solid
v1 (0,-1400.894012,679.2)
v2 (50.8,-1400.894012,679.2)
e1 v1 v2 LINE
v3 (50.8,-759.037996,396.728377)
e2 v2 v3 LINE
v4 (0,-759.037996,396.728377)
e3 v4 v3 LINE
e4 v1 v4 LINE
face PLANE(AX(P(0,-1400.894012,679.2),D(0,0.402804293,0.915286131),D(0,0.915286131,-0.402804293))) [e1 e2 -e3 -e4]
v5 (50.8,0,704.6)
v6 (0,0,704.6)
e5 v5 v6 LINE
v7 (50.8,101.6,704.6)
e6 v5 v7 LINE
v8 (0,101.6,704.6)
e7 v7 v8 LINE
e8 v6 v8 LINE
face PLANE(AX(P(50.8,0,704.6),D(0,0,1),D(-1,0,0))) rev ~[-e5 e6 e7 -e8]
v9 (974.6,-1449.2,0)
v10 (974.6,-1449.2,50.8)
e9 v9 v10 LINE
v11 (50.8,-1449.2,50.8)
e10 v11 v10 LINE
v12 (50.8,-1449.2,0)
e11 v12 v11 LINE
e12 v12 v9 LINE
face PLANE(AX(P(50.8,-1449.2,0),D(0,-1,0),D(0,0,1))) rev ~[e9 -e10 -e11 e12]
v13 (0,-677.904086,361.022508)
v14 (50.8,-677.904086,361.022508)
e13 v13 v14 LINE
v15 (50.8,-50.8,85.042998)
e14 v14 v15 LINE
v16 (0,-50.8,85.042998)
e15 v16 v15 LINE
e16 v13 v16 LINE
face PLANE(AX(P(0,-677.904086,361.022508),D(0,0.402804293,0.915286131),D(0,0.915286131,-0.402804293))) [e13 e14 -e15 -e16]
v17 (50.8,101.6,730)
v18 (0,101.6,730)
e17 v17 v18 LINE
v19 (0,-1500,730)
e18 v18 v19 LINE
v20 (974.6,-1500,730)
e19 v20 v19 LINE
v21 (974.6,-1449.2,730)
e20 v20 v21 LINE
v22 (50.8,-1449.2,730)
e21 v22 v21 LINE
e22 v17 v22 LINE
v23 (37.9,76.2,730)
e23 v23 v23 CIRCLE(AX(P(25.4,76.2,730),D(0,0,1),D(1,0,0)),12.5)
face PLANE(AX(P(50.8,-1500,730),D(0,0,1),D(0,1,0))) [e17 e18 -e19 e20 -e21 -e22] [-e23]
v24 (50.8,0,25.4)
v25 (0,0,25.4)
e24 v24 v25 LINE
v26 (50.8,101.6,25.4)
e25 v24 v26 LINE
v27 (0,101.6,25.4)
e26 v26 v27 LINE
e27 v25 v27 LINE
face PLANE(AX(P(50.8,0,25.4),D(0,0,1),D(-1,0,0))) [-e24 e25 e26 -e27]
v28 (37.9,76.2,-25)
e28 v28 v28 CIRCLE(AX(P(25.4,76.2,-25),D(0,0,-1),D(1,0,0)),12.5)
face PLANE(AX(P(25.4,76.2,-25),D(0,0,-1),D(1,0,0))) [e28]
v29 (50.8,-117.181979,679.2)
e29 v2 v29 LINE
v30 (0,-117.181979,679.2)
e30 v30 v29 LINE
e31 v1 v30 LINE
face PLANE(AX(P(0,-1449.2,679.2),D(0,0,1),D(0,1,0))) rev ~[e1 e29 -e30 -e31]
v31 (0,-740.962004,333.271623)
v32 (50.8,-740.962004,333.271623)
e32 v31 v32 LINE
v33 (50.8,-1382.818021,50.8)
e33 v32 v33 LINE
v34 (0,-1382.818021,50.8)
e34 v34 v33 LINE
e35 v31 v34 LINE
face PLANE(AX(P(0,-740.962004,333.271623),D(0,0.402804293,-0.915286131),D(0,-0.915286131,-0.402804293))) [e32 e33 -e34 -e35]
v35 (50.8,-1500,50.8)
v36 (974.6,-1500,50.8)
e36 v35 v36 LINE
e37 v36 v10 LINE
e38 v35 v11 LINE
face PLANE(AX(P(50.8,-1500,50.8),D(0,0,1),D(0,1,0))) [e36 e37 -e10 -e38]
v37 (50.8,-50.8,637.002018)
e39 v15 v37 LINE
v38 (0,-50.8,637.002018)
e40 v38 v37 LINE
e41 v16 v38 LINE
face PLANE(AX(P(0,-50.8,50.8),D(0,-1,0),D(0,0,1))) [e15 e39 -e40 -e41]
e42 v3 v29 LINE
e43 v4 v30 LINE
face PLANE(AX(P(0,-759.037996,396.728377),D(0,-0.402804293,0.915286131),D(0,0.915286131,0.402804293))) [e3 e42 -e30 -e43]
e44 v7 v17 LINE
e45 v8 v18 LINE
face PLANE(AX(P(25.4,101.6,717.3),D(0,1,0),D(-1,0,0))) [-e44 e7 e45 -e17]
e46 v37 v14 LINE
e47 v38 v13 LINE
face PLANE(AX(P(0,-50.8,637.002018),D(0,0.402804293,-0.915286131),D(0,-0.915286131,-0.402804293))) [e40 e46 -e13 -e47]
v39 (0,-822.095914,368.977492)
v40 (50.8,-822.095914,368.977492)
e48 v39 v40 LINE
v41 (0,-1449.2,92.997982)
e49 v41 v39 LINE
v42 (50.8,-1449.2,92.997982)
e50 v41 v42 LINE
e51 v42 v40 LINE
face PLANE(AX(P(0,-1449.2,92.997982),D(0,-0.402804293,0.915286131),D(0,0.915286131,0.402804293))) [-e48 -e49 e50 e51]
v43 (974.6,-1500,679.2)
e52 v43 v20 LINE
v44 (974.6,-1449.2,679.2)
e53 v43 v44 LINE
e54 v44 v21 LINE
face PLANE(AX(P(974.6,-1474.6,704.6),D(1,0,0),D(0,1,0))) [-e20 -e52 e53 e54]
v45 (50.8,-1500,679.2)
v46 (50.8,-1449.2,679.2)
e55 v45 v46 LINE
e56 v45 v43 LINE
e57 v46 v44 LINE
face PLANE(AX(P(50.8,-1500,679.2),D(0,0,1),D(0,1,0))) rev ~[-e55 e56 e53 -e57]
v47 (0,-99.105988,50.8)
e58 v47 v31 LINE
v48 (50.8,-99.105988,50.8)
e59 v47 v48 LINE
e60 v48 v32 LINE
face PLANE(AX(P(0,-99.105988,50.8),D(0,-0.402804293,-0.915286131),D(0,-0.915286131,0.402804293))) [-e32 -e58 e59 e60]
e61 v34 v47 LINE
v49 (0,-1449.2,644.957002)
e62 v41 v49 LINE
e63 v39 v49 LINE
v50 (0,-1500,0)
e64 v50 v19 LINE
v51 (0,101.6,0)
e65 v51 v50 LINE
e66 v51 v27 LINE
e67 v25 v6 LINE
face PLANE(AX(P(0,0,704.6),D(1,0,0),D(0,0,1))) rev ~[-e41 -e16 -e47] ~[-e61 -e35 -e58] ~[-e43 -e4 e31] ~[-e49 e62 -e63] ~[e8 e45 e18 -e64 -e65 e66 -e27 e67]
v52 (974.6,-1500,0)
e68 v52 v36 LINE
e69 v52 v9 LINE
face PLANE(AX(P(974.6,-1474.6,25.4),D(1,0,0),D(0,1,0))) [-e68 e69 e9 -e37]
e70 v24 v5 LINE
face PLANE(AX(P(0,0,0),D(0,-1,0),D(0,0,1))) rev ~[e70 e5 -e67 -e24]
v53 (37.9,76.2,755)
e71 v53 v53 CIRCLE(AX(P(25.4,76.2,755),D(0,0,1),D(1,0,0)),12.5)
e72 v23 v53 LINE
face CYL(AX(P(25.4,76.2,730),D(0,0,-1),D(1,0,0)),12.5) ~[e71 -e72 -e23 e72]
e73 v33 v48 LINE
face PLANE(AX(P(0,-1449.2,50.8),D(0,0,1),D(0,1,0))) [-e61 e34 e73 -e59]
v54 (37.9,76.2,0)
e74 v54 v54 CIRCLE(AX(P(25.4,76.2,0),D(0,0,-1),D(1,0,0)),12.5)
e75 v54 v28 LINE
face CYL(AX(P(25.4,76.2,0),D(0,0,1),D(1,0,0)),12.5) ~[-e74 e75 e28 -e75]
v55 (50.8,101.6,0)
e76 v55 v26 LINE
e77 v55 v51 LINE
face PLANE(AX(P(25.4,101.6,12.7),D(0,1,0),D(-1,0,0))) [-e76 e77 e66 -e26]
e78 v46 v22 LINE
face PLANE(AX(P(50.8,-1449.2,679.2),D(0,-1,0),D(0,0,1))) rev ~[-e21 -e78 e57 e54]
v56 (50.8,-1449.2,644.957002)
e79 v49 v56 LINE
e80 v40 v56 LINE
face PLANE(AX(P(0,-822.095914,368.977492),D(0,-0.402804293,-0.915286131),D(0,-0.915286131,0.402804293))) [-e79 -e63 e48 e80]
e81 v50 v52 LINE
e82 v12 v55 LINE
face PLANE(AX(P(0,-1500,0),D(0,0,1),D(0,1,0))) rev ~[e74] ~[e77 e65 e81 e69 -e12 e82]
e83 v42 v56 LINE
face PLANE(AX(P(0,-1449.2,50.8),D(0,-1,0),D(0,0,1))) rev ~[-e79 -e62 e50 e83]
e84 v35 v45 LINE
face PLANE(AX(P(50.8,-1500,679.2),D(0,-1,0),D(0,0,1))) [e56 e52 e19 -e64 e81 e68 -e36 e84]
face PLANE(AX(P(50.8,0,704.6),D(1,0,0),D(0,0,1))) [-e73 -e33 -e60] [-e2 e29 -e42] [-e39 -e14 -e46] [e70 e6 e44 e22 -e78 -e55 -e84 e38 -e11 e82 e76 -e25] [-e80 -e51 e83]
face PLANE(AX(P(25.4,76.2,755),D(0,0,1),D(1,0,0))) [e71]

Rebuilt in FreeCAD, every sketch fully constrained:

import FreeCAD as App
import Part
import Sketcher
from FreeCAD import Vector
Q = App.Units.Quantity

doc = App.newDocument("Part")
params = doc.addObject("Spreadsheet::Sheet", "Params")
for row, (alias, value) in enumerate([
    ("sketch1_width", "1500 mm"),
    ("sketch1_height", "730 mm"),
    ("sketch1_width2", "1398.4 mm"),
    ("sketch1_height2", "628.4 mm"),
    ("pad1_length", "50.8 mm"),
    ("pad2_length", "50.8 mm"),
    ("sketch3_width", "50.8 mm"),
    ("sketch3_height", "25.4 mm"),
    ("pad3_length", "101.6 mm"),
    ("sketch4_diameter", "25 mm"),
    ("pad4_length", "25 mm"),
    ("sketch5_diameter", "25 mm"),
    ("pad5_length", "25 mm"),
    ("sketch6_width", "50.8 mm"),
    ("pad6_length", "923.8 mm"),
], start=1):
    params.set(f"A{row}", alias)
    params.set(f"B{row}", "=" + value)
    params.setAlias(f"B{row}", alias)

body = doc.addObject("PartDesign::Body", "Body")

sketch1 = body.newObject("Sketcher::SketchObject", "Sketch")
sketch1.AttachmentSupport = (doc.getObject("YZ_Plane"), [""])
sketch1.MapMode = "FlatFace"
sketch1.addGeometry(Part.LineSegment(Vector(-1500, 730, 0), Vector(-1500, 0, 0)), False)
sketch1.addGeometry(Part.LineSegment(Vector(-1500, 0, 0), Vector(0, 0, 0)), False)
sketch1.addGeometry(Part.LineSegment(Vector(0, 0, 0), Vector(0, 730, 0)), False)
sketch1.addGeometry(Part.LineSegment(Vector(0, 730, 0), Vector(-1500, 730, 0)), False)
sketch1.addGeometry(Part.LineSegment(Vector(-51, 51, 0), Vector(-1449, 51, 0)), False)
sketch1.addGeometry(Part.LineSegment(Vector(-1449, 51, 0), Vector(-1449, 679, 0)), False)
sketch1.addGeometry(Part.LineSegment(Vector(-1449, 679, 0), Vector(-51, 679, 0)), False)
sketch1.addGeometry(Part.LineSegment(Vector(-51, 679, 0), Vector(-51, 51, 0)), False)
sketch1.addConstraint(Sketcher.Constraint("Coincident", 0, 2, 1, 1))
sketch1.addConstraint(Sketcher.Constraint("Coincident", 1, 2, 2, 1))
sketch1.addConstraint(Sketcher.Constraint("Coincident", 2, 2, 3, 1))
sketch1.addConstraint(Sketcher.Constraint("Coincident", 3, 2, 0, 1))
sketch1.addConstraint(Sketcher.Constraint("Coincident", 4, 2, 5, 1))
sketch1.addConstraint(Sketcher.Constraint("Coincident", 5, 2, 6, 1))
sketch1.addConstraint(Sketcher.Constraint("Coincident", 6, 2, 7, 1))
sketch1.addConstraint(Sketcher.Constraint("Coincident", 7, 2, 4, 1))
sketch1.addConstraint(Sketcher.Constraint("Vertical", 0))
sketch1.addConstraint(Sketcher.Constraint("Horizontal", 1))
sketch1.addConstraint(Sketcher.Constraint("Vertical", 2))
sketch1.addConstraint(Sketcher.Constraint("Horizontal", 3))
sketch1.addConstraint(Sketcher.Constraint("Horizontal", 4))
sketch1.addConstraint(Sketcher.Constraint("Vertical", 5))
sketch1.addConstraint(Sketcher.Constraint("Horizontal", 6))
sketch1.addConstraint(Sketcher.Constraint("Vertical", 7))
sketch1.addConstraint(Sketcher.Constraint("Coincident", 1, 2, -1, 1))
sketch1.addConstraint(Sketcher.Constraint("DistanceX", 1, 1, 1, 2, Q("1500 mm")))
sketch1.addConstraint(Sketcher.Constraint("DistanceY", 0, 2, 0, 1, Q("730 mm")))
sketch1.addConstraint(Sketcher.Constraint("DistanceX", 4, 2, 4, 1, Q("1398.4 mm")))
sketch1.addConstraint(Sketcher.Constraint("DistanceY", 5, 1, 5, 2, Q("628.4 mm")))
sketch1.addConstraint(Sketcher.Constraint("DistanceX", 4, 2, -1, 1, Q("1449.2 mm")))
sketch1.addConstraint(Sketcher.Constraint("DistanceY", -1, 1, 4, 2, Q("50.8 mm")))
sketch1.setExpression("Constraints[17]", "Params.sketch1_width")
sketch1.setExpression("Constraints[18]", "Params.sketch1_height")
sketch1.setExpression("Constraints[19]", "Params.sketch1_width2")
sketch1.setExpression("Constraints[20]", "Params.sketch1_height2")
pad1 = body.newObject("PartDesign::Pad", "Pad")
pad1.Profile = sketch1
pad1.setExpression("Length", "Params.pad1_length")

sketch2 = body.newObject("Sketcher::SketchObject", "Sketch001")
sketch2.AttachmentSupport = (doc.getObject("YZ_Plane"), [""])
sketch2.MapMode = "FlatFace"
sketch2.addGeometry(Part.LineSegment(Vector(-759, 397, 0), Vector(-117, 679, 0)), False)
sketch2.addGeometry(Part.LineSegment(Vector(-117, 679, 0), Vector(-51, 679, 0)), False)
sketch2.addGeometry(Part.LineSegment(Vector(-51, 679, 0), Vector(-51, 637, 0)), False)
sketch2.addGeometry(Part.LineSegment(Vector(-51, 637, 0), Vector(-678, 361, 0)), False)
sketch2.addGeometry(Part.LineSegment(Vector(-678, 361, 0), Vector(-51, 85, 0)), False)
sketch2.addGeometry(Part.LineSegment(Vector(-51, 85, 0), Vector(-51, 51, 0)), False)
sketch2.addGeometry(Part.LineSegment(Vector(-51, 51, 0), Vector(-99, 51, 0)), False)
sketch2.addGeometry(Part.LineSegment(Vector(-99, 51, 0), Vector(-741, 333, 0)), False)
sketch2.addGeometry(Part.LineSegment(Vector(-741, 333, 0), Vector(-1383, 51, 0)), False)
sketch2.addGeometry(Part.LineSegment(Vector(-1383, 51, 0), Vector(-1449, 51, 0)), False)
sketch2.addGeometry(Part.LineSegment(Vector(-1449, 51, 0), Vector(-1449, 93, 0)), False)
sketch2.addGeometry(Part.LineSegment(Vector(-1449, 93, 0), Vector(-822, 369, 0)), False)
sketch2.addGeometry(Part.LineSegment(Vector(-822, 369, 0), Vector(-1449, 645, 0)), False)
sketch2.addGeometry(Part.LineSegment(Vector(-1449, 645, 0), Vector(-1449, 679, 0)), False)
sketch2.addGeometry(Part.LineSegment(Vector(-1449, 679, 0), Vector(-1401, 679, 0)), False)
sketch2.addGeometry(Part.LineSegment(Vector(-1401, 679, 0), Vector(-759, 397, 0)), False)
sketch2.addConstraint(Sketcher.Constraint("Coincident", 0, 2, 1, 1))
sketch2.addConstraint(Sketcher.Constraint("Coincident", 1, 2, 2, 1))
sketch2.addConstraint(Sketcher.Constraint("Coincident", 2, 2, 3, 1))
sketch2.addConstraint(Sketcher.Constraint("Coincident", 3, 2, 4, 1))
sketch2.addConstraint(Sketcher.Constraint("Coincident", 4, 2, 5, 1))
sketch2.addConstraint(Sketcher.Constraint("Coincident", 5, 2, 6, 1))
sketch2.addConstraint(Sketcher.Constraint("Coincident", 6, 2, 7, 1))
sketch2.addConstraint(Sketcher.Constraint("Coincident", 7, 2, 8, 1))
sketch2.addConstraint(Sketcher.Constraint("Coincident", 8, 2, 9, 1))
sketch2.addConstraint(Sketcher.Constraint("Coincident", 9, 2, 10, 1))
sketch2.addConstraint(Sketcher.Constraint("Coincident", 10, 2, 11, 1))
sketch2.addConstraint(Sketcher.Constraint("Coincident", 11, 2, 12, 1))
sketch2.addConstraint(Sketcher.Constraint("Coincident", 12, 2, 13, 1))
sketch2.addConstraint(Sketcher.Constraint("Coincident", 13, 2, 14, 1))
sketch2.addConstraint(Sketcher.Constraint("Coincident", 14, 2, 15, 1))
sketch2.addConstraint(Sketcher.Constraint("Coincident", 15, 2, 0, 1))
sketch2.addConstraint(Sketcher.Constraint("Horizontal", 1))
sketch2.addConstraint(Sketcher.Constraint("Vertical", 2))
sketch2.addConstraint(Sketcher.Constraint("Vertical", 5))
sketch2.addConstraint(Sketcher.Constraint("Horizontal", 6))
sketch2.addConstraint(Sketcher.Constraint("Horizontal", 9))
sketch2.addConstraint(Sketcher.Constraint("Vertical", 10))
sketch2.addConstraint(Sketcher.Constraint("Vertical", 13))
sketch2.addConstraint(Sketcher.Constraint("Horizontal", 14))
sketch2.addConstraint(Sketcher.Constraint("Parallel", 0, 3))
sketch2.addConstraint(Sketcher.Constraint("Parallel", 4, 7))
sketch2.addConstraint(Sketcher.Constraint("Parallel", 3, 8))
sketch2.addConstraint(Sketcher.Constraint("Parallel", 8, 11))
sketch2.addConstraint(Sketcher.Constraint("Parallel", 7, 12))
sketch2.addConstraint(Sketcher.Constraint("Parallel", 12, 15))
sketch2.addConstraint(Sketcher.Constraint("Horizontal", 6, 2, 8, 2))
sketch2.addConstraint(Sketcher.Constraint("Horizontal", 1, 2, 13, 2))
sketch2.addConstraint(Sketcher.Constraint("Vertical", 2, 2, 4, 2))
sketch2.addConstraint(Sketcher.Constraint("Vertical", 10, 2, 12, 2))
sketch2.addConstraint(Sketcher.Constraint("Equal", 1, 9))
sketch2.addConstraint(Sketcher.Constraint("Equal", 6, 14))
sketch2.addConstraint(Sketcher.Constraint("Equal", 2, 10))
sketch2.addConstraint(Sketcher.Constraint("Equal", 5, 13))
sketch2.addConstraint(Sketcher.Constraint("Equal", 3, 4))
sketch2.addConstraint(Sketcher.Constraint("DistanceY", -1, 1, 0, 2, Q("679.2 mm")))
sketch2.addConstraint(Sketcher.Constraint("DistanceX", 1, 2, -1, 1, Q("50.8 mm")))
sketch2.addConstraint(Sketcher.Constraint("DistanceY", -1, 1, 5, 2, Q("50.8 mm")))
sketch2.addConstraint(Sketcher.Constraint("DistanceX", 9, 2, -1, 1, Q("1449.2 mm")))
sketch2.addConstraint(Sketcher.Constraint("DistanceY", 13, 1, 13, 2, Q("34.242998 mm")))
sketch2.addConstraint(Sketcher.Constraint("DistanceX", 1, 1, 1, 2, Q("66.381979 mm")))
sketch2.addConstraint(Sketcher.Constraint("DistanceX", 14, 1, 14, 2, Q("48.305988 mm")))
sketch2.addConstraint(Sketcher.Constraint("DistanceY", 10, 1, 10, 2, Q("42.197982 mm")))
sketch2.addConstraint(Sketcher.Constraint("Distance", 7, Q("701.262692 mm")))
pad2 = body.newObject("PartDesign::Pad", "Pad001")
pad2.Profile = sketch2
pad2.setExpression("Length", "Params.pad2_length")

sketch3 = body.newObject("Sketcher::SketchObject", "Sketch002")
sketch3.AttachmentSupport = (doc.getObject("XZ_Plane"), [""])
sketch3.MapMode = "FlatFace"
sketch3.addGeometry(Part.LineSegment(Vector(51, 730, 0), Vector(51, 705, 0)), False)
sketch3.addGeometry(Part.LineSegment(Vector(51, 705, 0), Vector(0, 705, 0)), False)
sketch3.addGeometry(Part.LineSegment(Vector(0, 705, 0), Vector(0, 730, 0)), False)
sketch3.addGeometry(Part.LineSegment(Vector(0, 730, 0), Vector(51, 730, 0)), False)
sketch3.addGeometry(Part.LineSegment(Vector(51, 25, 0), Vector(51, 0, 0)), False)
sketch3.addGeometry(Part.LineSegment(Vector(51, 0, 0), Vector(0, 0, 0)), False)
sketch3.addGeometry(Part.LineSegment(Vector(0, 0, 0), Vector(0, 25, 0)), False)
sketch3.addGeometry(Part.LineSegment(Vector(0, 25, 0), Vector(51, 25, 0)), False)
sketch3.addConstraint(Sketcher.Constraint("Coincident", 0, 2, 1, 1))
sketch3.addConstraint(Sketcher.Constraint("Coincident", 1, 2, 2, 1))
sketch3.addConstraint(Sketcher.Constraint("Coincident", 2, 2, 3, 1))
sketch3.addConstraint(Sketcher.Constraint("Coincident", 3, 2, 0, 1))
sketch3.addConstraint(Sketcher.Constraint("Coincident", 4, 2, 5, 1))
sketch3.addConstraint(Sketcher.Constraint("Coincident", 5, 2, 6, 1))
sketch3.addConstraint(Sketcher.Constraint("Coincident", 6, 2, 7, 1))
sketch3.addConstraint(Sketcher.Constraint("Coincident", 7, 2, 4, 1))
sketch3.addConstraint(Sketcher.Constraint("Vertical", 0))
sketch3.addConstraint(Sketcher.Constraint("Horizontal", 1))
sketch3.addConstraint(Sketcher.Constraint("Vertical", 2))
sketch3.addConstraint(Sketcher.Constraint("Horizontal", 3))
sketch3.addConstraint(Sketcher.Constraint("Vertical", 4))
sketch3.addConstraint(Sketcher.Constraint("Horizontal", 5))
sketch3.addConstraint(Sketcher.Constraint("Vertical", 6))
sketch3.addConstraint(Sketcher.Constraint("Horizontal", 7))
sketch3.addConstraint(Sketcher.Constraint("Coincident", 5, 2, -1, 1))
sketch3.addConstraint(Sketcher.Constraint("PointOnObject", 1, 2, -2))
sketch3.addConstraint(Sketcher.Constraint("Vertical", 3, 2, 4, 2))
sketch3.addConstraint(Sketcher.Constraint("Equal", 2, 4))
sketch3.addConstraint(Sketcher.Constraint("DistanceX", 1, 2, 1, 1, Q("50.8 mm")))
sketch3.addConstraint(Sketcher.Constraint("DistanceY", 0, 2, 0, 1, Q("25.4 mm")))
sketch3.addConstraint(Sketcher.Constraint("DistanceY", -1, 1, 2, 2, Q("730 mm")))
sketch3.setExpression("Constraints[20]", "Params.sketch3_width")
sketch3.setExpression("Constraints[21]", "Params.sketch3_height")
pad3 = body.newObject("PartDesign::Pad", "Pad002")
pad3.Profile = sketch3
pad3.setExpression("Length", "Params.pad3_length")
pad3.Reversed = True

sketch4 = body.newObject("Sketcher::SketchObject", "Sketch003")
sketch4.AttachmentSupport = (doc.getObject("XY_Plane"), [""])
sketch4.MapMode = "FlatFace"
sketch4.AttachmentOffset = App.Placement(Vector(0, 0, 730), App.Rotation())
sketch4.addGeometry(Part.Circle(Vector(25, 76, 0), Vector(0, 0, 1), 12), False)
sketch4.addConstraint(Sketcher.Constraint("Diameter", 0, Q("25 mm")))
sketch4.addConstraint(Sketcher.Constraint("DistanceX", -1, 1, 0, 3, Q("25.4 mm")))
sketch4.addConstraint(Sketcher.Constraint("DistanceY", -1, 1, 0, 3, Q("76.2 mm")))
sketch4.setExpression("Constraints[0]", "Params.sketch4_diameter")
pad4 = body.newObject("PartDesign::Pad", "Pad003")
pad4.Profile = sketch4
pad4.setExpression("Length", "Params.pad4_length")

sketch5 = body.newObject("Sketcher::SketchObject", "Sketch004")
sketch5.AttachmentSupport = (doc.getObject("XY_Plane"), [""])
sketch5.MapMode = "FlatFace"
sketch5.addGeometry(Part.Circle(Vector(25, 76, 0), Vector(0, 0, 1), 12), False)
sketch5.addConstraint(Sketcher.Constraint("Diameter", 0, Q("25 mm")))
sketch5.addConstraint(Sketcher.Constraint("DistanceX", -1, 1, 0, 3, Q("25.4 mm")))
sketch5.addConstraint(Sketcher.Constraint("DistanceY", -1, 1, 0, 3, Q("76.2 mm")))
sketch5.setExpression("Constraints[0]", "Params.sketch5_diameter")
pad5 = body.newObject("PartDesign::Pad", "Pad004")
pad5.Profile = sketch5
pad5.setExpression("Length", "Params.pad5_length")
pad5.Reversed = True

sketch6 = body.newObject("Sketcher::SketchObject", "Sketch005")
sketch6.AttachmentSupport = (doc.getObject("YZ_Plane"), [""])
sketch6.MapMode = "FlatFace"
sketch6.AttachmentOffset = App.Placement(Vector(0, 0, 50.8), App.Rotation())
sketch6.addGeometry(Part.LineSegment(Vector(-1500, 730, 0), Vector(-1500, 679, 0)), False)
sketch6.addGeometry(Part.LineSegment(Vector(-1500, 679, 0), Vector(-1449, 679, 0)), False)
sketch6.addGeometry(Part.LineSegment(Vector(-1449, 679, 0), Vector(-1449, 730, 0)), False)
sketch6.addGeometry(Part.LineSegment(Vector(-1449, 730, 0), Vector(-1500, 730, 0)), False)
sketch6.addGeometry(Part.LineSegment(Vector(-1500, 51, 0), Vector(-1500, 0, 0)), False)
sketch6.addGeometry(Part.LineSegment(Vector(-1500, 0, 0), Vector(-1449, 0, 0)), False)
sketch6.addGeometry(Part.LineSegment(Vector(-1449, 0, 0), Vector(-1449, 51, 0)), False)
sketch6.addGeometry(Part.LineSegment(Vector(-1449, 51, 0), Vector(-1500, 51, 0)), False)
sketch6.addConstraint(Sketcher.Constraint("Coincident", 0, 2, 1, 1))
sketch6.addConstraint(Sketcher.Constraint("Coincident", 1, 2, 2, 1))
sketch6.addConstraint(Sketcher.Constraint("Coincident", 2, 2, 3, 1))
sketch6.addConstraint(Sketcher.Constraint("Coincident", 3, 2, 0, 1))
sketch6.addConstraint(Sketcher.Constraint("Coincident", 4, 2, 5, 1))
sketch6.addConstraint(Sketcher.Constraint("Coincident", 5, 2, 6, 1))
sketch6.addConstraint(Sketcher.Constraint("Coincident", 6, 2, 7, 1))
sketch6.addConstraint(Sketcher.Constraint("Coincident", 7, 2, 4, 1))
sketch6.addConstraint(Sketcher.Constraint("Vertical", 0))
sketch6.addConstraint(Sketcher.Constraint("Horizontal", 1))
sketch6.addConstraint(Sketcher.Constraint("Vertical", 2))
sketch6.addConstraint(Sketcher.Constraint("Horizontal", 3))
sketch6.addConstraint(Sketcher.Constraint("Vertical", 4))
sketch6.addConstraint(Sketcher.Constraint("Horizontal", 5))
sketch6.addConstraint(Sketcher.Constraint("Vertical", 6))
sketch6.addConstraint(Sketcher.Constraint("Horizontal", 7))
sketch6.addConstraint(Sketcher.Constraint("PointOnObject", 4, 2, -1))
sketch6.addConstraint(Sketcher.Constraint("Vertical", 3, 2, 4, 2))
sketch6.addConstraint(Sketcher.Constraint("Vertical", 2, 2, 5, 2))
sketch6.addConstraint(Sketcher.Constraint("Equal", 7, 0))
sketch6.addConstraint(Sketcher.Constraint("Equal", 2, 4))
sketch6.addConstraint(Sketcher.Constraint("DistanceX", 1, 1, 1, 2, Q("50.8 mm")))
sketch6.addConstraint(Sketcher.Constraint("DistanceX", 0, 2, -1, 1, Q("1500 mm")))
sketch6.addConstraint(Sketcher.Constraint("DistanceY", -1, 1, 2, 2, Q("730 mm")))
sketch6.setExpression("Constraints[21]", "Params.sketch6_width")
pad6 = body.newObject("PartDesign::Pad", "Pad005")
pad6.Profile = sketch6
pad6.setExpression("Length", "Params.pad6_length")

doc.recompute()
